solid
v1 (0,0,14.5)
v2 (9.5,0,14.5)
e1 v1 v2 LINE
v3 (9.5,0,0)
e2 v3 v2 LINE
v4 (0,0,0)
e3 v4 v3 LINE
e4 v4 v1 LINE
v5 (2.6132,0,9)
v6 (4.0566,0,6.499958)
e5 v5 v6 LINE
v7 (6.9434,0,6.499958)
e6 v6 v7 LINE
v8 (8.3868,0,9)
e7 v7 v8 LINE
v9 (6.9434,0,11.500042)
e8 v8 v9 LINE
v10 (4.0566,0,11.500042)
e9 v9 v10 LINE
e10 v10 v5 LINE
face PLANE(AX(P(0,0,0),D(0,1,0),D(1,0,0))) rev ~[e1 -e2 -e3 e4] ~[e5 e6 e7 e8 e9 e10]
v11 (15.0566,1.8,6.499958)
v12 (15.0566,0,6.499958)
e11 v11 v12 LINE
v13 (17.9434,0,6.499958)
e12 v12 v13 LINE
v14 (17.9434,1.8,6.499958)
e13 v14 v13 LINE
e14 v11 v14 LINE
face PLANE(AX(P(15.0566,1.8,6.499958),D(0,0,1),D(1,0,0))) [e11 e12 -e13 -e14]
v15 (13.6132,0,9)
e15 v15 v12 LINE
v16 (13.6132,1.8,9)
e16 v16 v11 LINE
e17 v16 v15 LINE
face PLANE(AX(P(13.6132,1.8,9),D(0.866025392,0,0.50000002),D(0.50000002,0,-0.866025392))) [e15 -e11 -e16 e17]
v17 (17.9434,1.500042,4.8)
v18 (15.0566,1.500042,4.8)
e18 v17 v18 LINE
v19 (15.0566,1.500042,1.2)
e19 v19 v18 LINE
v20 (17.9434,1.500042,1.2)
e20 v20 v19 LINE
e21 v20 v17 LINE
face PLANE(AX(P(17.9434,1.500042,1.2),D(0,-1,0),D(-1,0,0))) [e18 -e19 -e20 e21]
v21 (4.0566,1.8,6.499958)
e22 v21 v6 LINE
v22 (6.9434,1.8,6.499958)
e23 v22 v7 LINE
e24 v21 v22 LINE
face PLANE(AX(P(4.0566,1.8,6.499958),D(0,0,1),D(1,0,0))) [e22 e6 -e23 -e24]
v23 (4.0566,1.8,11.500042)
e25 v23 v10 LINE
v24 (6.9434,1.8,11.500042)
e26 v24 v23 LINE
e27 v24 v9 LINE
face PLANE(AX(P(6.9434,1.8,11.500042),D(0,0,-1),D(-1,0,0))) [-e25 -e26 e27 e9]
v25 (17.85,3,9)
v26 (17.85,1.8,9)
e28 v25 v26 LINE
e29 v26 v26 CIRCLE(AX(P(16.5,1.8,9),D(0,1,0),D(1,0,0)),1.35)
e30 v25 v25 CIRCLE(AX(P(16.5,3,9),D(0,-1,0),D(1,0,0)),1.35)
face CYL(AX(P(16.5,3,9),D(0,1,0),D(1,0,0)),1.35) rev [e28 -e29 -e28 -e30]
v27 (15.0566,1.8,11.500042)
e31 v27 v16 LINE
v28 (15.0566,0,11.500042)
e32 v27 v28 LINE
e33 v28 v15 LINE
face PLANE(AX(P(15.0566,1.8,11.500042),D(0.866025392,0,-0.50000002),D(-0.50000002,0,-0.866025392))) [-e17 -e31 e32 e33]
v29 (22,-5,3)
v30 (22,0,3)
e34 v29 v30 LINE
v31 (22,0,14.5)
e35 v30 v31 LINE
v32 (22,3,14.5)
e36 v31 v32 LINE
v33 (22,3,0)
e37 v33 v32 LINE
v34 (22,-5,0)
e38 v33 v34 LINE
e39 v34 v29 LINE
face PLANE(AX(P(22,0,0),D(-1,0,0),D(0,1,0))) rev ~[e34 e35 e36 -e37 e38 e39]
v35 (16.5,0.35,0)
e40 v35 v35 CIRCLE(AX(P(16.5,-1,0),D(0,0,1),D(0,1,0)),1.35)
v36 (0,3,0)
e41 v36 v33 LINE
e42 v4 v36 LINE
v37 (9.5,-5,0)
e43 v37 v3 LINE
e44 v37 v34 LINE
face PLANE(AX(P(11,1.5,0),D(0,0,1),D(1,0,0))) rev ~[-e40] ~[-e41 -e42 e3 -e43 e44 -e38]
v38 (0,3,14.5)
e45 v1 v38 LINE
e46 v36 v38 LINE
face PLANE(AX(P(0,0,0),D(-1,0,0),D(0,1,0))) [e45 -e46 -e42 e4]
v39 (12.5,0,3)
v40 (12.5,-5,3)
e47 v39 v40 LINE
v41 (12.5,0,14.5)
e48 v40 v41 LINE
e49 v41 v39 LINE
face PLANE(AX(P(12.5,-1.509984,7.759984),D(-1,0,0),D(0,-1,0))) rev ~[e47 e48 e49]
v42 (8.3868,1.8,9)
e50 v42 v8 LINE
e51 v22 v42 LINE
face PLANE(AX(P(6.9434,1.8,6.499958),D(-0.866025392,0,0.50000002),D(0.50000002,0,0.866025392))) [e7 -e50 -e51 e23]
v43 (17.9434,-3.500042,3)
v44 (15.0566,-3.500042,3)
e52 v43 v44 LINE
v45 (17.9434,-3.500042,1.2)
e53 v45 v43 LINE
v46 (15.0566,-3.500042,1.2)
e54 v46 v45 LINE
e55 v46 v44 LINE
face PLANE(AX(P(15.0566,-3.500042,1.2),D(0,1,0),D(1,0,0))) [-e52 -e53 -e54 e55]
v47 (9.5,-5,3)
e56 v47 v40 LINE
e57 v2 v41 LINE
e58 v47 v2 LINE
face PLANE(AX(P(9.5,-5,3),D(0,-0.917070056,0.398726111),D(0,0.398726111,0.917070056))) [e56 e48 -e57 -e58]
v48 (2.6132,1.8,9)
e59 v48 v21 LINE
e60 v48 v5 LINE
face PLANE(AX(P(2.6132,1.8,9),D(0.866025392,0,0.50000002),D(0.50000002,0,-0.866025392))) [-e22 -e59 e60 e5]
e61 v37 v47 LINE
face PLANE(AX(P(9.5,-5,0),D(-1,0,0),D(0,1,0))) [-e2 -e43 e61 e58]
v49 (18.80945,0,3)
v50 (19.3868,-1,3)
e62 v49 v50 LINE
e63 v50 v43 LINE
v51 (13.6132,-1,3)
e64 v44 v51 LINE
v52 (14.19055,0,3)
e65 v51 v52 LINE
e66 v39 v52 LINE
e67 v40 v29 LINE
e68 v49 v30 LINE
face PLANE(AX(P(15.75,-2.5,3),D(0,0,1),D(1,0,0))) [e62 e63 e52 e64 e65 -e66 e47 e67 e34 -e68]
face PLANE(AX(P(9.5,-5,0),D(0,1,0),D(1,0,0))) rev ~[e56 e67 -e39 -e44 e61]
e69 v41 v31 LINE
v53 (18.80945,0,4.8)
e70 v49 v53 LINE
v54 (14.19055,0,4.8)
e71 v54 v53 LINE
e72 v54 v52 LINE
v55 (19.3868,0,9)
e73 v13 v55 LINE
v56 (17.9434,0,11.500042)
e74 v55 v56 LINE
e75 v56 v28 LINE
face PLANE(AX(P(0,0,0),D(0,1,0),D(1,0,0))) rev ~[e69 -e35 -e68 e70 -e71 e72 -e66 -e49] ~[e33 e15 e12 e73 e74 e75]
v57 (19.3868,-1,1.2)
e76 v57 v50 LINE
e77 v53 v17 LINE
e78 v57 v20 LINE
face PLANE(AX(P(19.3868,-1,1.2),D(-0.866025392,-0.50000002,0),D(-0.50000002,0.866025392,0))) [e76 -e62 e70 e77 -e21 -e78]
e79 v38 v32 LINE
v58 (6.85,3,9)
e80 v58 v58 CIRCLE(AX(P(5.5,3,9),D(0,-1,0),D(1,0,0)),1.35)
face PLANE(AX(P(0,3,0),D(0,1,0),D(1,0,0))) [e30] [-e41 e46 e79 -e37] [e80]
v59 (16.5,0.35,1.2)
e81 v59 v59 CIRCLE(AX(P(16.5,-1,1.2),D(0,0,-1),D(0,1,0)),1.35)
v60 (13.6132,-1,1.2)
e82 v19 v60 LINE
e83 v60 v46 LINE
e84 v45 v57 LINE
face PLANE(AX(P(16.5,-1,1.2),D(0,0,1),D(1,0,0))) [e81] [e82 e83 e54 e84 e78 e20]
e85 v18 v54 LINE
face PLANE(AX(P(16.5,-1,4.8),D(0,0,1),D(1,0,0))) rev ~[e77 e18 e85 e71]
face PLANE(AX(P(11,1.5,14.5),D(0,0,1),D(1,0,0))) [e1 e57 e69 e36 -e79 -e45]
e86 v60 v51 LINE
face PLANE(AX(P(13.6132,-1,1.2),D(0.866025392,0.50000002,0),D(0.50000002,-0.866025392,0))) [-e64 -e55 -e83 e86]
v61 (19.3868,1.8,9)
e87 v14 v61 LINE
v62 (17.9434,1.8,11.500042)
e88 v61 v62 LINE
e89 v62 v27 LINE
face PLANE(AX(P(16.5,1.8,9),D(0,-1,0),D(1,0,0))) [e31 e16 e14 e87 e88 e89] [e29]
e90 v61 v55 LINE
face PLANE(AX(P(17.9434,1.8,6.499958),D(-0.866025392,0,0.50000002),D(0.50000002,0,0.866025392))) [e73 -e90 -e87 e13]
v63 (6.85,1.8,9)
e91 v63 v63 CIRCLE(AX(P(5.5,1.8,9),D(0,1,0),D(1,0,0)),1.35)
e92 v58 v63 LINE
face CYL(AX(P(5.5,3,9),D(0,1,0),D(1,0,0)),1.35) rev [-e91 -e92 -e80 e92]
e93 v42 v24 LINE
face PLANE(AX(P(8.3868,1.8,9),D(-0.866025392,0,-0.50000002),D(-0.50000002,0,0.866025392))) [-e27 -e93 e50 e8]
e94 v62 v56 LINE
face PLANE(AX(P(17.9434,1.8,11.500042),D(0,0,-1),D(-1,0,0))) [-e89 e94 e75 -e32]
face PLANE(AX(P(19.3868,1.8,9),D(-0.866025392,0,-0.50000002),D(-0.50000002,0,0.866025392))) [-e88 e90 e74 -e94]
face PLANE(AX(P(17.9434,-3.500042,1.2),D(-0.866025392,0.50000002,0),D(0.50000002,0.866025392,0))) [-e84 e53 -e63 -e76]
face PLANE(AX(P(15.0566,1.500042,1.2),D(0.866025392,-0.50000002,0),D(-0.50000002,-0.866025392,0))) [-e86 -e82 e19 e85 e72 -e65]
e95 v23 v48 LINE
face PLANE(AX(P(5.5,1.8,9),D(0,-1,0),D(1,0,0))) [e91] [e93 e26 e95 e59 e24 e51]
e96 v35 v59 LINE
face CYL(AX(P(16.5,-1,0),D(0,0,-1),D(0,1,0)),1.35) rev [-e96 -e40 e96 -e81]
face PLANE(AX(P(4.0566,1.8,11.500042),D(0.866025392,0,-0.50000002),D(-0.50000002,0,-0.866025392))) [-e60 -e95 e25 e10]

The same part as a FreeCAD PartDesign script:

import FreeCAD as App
import Part
import Sketcher
Q = App.Units.Quantity

doc = App.newDocument("Part")
body = doc.addObject("PartDesign::Body", "Body")

sketch1 = body.newObject("Sketcher::SketchObject", "Sketch")
sketch1.AttachmentSupport = (doc.getObject("XY_Plane"), [""])
sketch1.MapMode = "FlatFace"
sketch1.addGeometry([
    Part.LineSegment(App.Vector(2.8868, 0, 0), App.Vector(1.4434, 2.500042, 0)),
    Part.LineSegment(App.Vector(1.4434, 2.500042, 0), App.Vector(-1.4434, 2.500042, 0)),
    Part.LineSegment(App.Vector(-1.4434, 2.500042, 0), App.Vector(-2.8868, 0, 0)),
    Part.LineSegment(App.Vector(-2.8868, 0, 0), App.Vector(-1.4434, -2.500042, 0)),
    Part.LineSegment(App.Vector(-1.4434, -2.500042, 0), App.Vector(1.4434, -2.500042, 0)),
    Part.LineSegment(App.Vector(1.4434, -2.500042, 0), App.Vector(2.8868, 0, 0)),
], False)
sketch1.addConstraint([
    Sketcher.Constraint("Coincident", 0, 2, 1, 1),
    Sketcher.Constraint("Coincident", 1, 2, 2, 1),
    Sketcher.Constraint("Coincident", 2, 2, 3, 1),
    Sketcher.Constraint("Coincident", 3, 2, 4, 1),
    Sketcher.Constraint("Coincident", 4, 2, 5, 1),
    Sketcher.Constraint("Coincident", 5, 2, 0, 1),
    Sketcher.Constraint("Horizontal", 1),
    Sketcher.Constraint("Horizontal", 4),
    Sketcher.Constraint("Symmetric", 0, 2, 3, 2, -1, 1),
    Sketcher.Constraint("Symmetric", 2, 2, 5, 2, -1, 1),
    Sketcher.Constraint("PointOnObject", 2, 2, -1),
    Sketcher.Constraint("Parallel", 2, 5),
    Sketcher.Constraint("Vertical", 1, 2, 3, 2),
    Sketcher.Constraint("Angle", 0, Q("120.000001 deg")),
    Sketcher.Constraint("DistanceX", 1, 2, 1, 1, Q("2.8868 mm")),
    Sketcher.Constraint("Distance", 0, Q("2.8868 mm")),
])
pad1 = body.newObject("PartDesign::Pad", "Pad")
pad1.Profile = sketch1
pad1.Length = 3.6
body2 = doc.addObject("PartDesign::Body", "Body001")
doc.recompute()

body.Placement = App.Placement(App.Vector(16.5, -1, 1.2), App.Rotation(App.Vector(0, 0, 1), 0))
boolean = body2.newObject("PartDesign::Boolean", "Boolean")
boolean.Type = "Fuse"
boolean.addObjects([body])
body3 = doc.addObject("PartDesign::Body", "Body002")

sketch2 = body3.newObject("Sketcher::SketchObject", "Sketch001")
sketch2.AttachmentSupport = (doc.getObject("XY_Plane002"), [""])
sketch2.MapMode = "FlatFace"
sketch2.addGeometry(Part.Circle(App.Vector(16.5, -1, 0), App.Vector(0, 0, 1), 1.35), False)
sketch2.addConstraint([
    Sketcher.Constraint("Diameter", 0, Q("2.7 mm")),
    Sketcher.Constraint("DistanceY", 0, 3, -1, 1, Q("1 mm")),
    Sketcher.Constraint("DistanceX", -1, 1, 0, 3, Q("16.5 mm")),
])
pad2 = body3.newObject("PartDesign::Pad", "Pad001")
pad2.Profile = sketch2
pad2.Length = 3
doc.recompute()

boolean2 = body3.newObject("PartDesign::Boolean", "Boolean001")
boolean2.Type = "Fuse"
boolean2.addObjects([body2])
body4 = doc.addObject("PartDesign::Body", "Body003")

sketch3 = body4.newObject("Sketcher::SketchObject", "Sketch002")
sketch3.AttachmentSupport = (doc.getObject("XZ_Plane003"), [""])
sketch3.MapMode = "FlatFace"
sketch3.AttachmentOffset = App.Placement(App.Vector(0, 0, -1.8), App.Rotation())
sketch3.addGeometry([
    Part.LineSegment(App.Vector(19.3868, 9, 0), App.Vector(17.9434, 11.500042, 0)),
    Part.LineSegment(App.Vector(17.9434, 11.500042, 0), App.Vector(15.0566, 11.500042, 0)),
    Part.LineSegment(App.Vector(15.0566, 11.500042, 0), App.Vector(13.6132, 9, 0)),
    Part.LineSegment(App.Vector(13.6132, 9, 0), App.Vector(15.0566, 6.499958, 0)),
    Part.LineSegment(App.Vector(15.0566, 6.499958, 0), App.Vector(17.9434, 6.499958, 0)),
    Part.LineSegment(App.Vector(17.9434, 6.499958, 0), App.Vector(19.3868, 9, 0)),
], False)
sketch3.addConstraint([
    Sketcher.Constraint("Coincident", 0, 2, 1, 1),
    Sketcher.Constraint("Coincident", 1, 2, 2, 1),
    Sketcher.Constraint("Coincident", 2, 2, 3, 1),
    Sketcher.Constraint("Coincident", 3, 2, 4, 1),
    Sketcher.Constraint("Coincident", 4, 2, 5, 1),
    Sketcher.Constraint("Coincident", 5, 2, 0, 1),
    Sketcher.Constraint("Horizontal", 1),
    Sketcher.Constraint("Horizontal", 4),
    Sketcher.Constraint("Parallel", 0, 3),
    Sketcher.Constraint("Parallel", 2, 5),
    Sketcher.Constraint("Horizontal", 2, 2, 5, 2),
    Sketcher.Constraint("Vertical", 1, 2, 3, 2),
    Sketcher.Constraint("Vertical", 0, 2, 4, 2),
    Sketcher.Constraint("Angle", 0, Q("120.000001 deg")),
    Sketcher.Constraint("DistanceY", -1, 1, 2, 2, Q("9 mm")),
    Sketcher.Constraint("DistanceX", 1, 2, 1, 1, Q("2.8868 mm")),
    Sketcher.Constraint("Distance", 0, Q("2.8868 mm")),
    Sketcher.Constraint("DistanceX", -1, 1, 0, 2, Q("17.9434 mm")),
])
pad3 = body4.newObject("PartDesign::Pad", "Pad002")
pad3.Profile = sketch3
pad3.Length = 1.8
body5 = doc.addObject("PartDesign::Body", "Body004")

sketch4 = body5.newObject("Sketcher::SketchObject", "Sketch003")
sketch4.AttachmentSupport = (doc.getObject("XZ_Plane004"), [""])
sketch4.MapMode = "FlatFace"
sketch4.AttachmentOffset = App.Placement(App.Vector(0, 0, -3), App.Rotation())
sketch4.addGeometry(Part.Circle(App.Vector(16.5, 9, 0), App.Vector(0, 0, 1), 1.35), False)
sketch4.addConstraint([
    Sketcher.Constraint("Diameter", 0, Q("2.7 mm")),
    Sketcher.Constraint("DistanceY", -1, 1, 0, 3, Q("9 mm")),
    Sketcher.Constraint("DistanceX", -1, 1, 0, 3, Q("16.5 mm")),
])
pad4 = body5.newObject("PartDesign::Pad", "Pad003")
pad4.Profile = sketch4
pad4.Length = 30
doc.recompute()

boolean3 = body5.newObject("PartDesign::Boolean", "Boolean002")
boolean3.Type = "Fuse"
boolean3.addObjects([body4])
body6 = doc.addObject("PartDesign::Body", "Body005")

sketch5 = body6.newObject("Sketcher::SketchObject", "Sketch004")
sketch5.AttachmentSupport = (doc.getObject("XZ_Plane005"), [""])
sketch5.MapMode = "FlatFace"
sketch5.AttachmentOffset = App.Placement(App.Vector(0, 0, -1.8), App.Rotation())
sketch5.addGeometry([
    Part.LineSegment(App.Vector(8.3868, 9, 0), App.Vector(6.9434, 11.500042, 0)),
    Part.LineSegment(App.Vector(6.9434, 11.500042, 0), App.Vector(4.0566, 11.500042, 0)),
    Part.LineSegment(App.Vector(4.0566, 11.500042, 0), App.Vector(2.6132, 9, 0)),
    Part.LineSegment(App.Vector(2.6132, 9, 0), App.Vector(4.0566, 6.499958, 0)),
    Part.LineSegment(App.Vector(4.0566, 6.499958, 0), App.Vector(6.9434, 6.499958, 0)),
    Part.LineSegment(App.Vector(6.9434, 6.499958, 0), App.Vector(8.3868, 9, 0)),
], False)
sketch5.addConstraint([
    Sketcher.Constraint("Coincident", 0, 2, 1, 1),
    Sketcher.Constraint("Coincident", 1, 2, 2, 1),
    Sketcher.Constraint("Coincident", 2, 2, 3, 1),
    Sketcher.Constraint("Coincident", 3, 2, 4, 1),
    Sketcher.Constraint("Coincident", 4, 2, 5, 1),
    Sketcher.Constraint("Coincident", 5, 2, 0, 1),
    Sketcher.Constraint("Horizontal", 1),
    Sketcher.Constraint("Horizontal", 4),
    Sketcher.Constraint("Parallel", 0, 3),
    Sketcher.Constraint("Parallel", 2, 5),
    Sketcher.Constraint("Horizontal", 2, 2, 5, 2),
    Sketcher.Constraint("Vertical", 1, 2, 3, 2),
    Sketcher.Constraint("Vertical", 0, 2, 4, 2),
    Sketcher.Constraint("Angle", 0, Q("120.000001 deg")),
    Sketcher.Constraint("DistanceY", -1, 1, 2, 2, Q("9 mm")),
    Sketcher.Constraint("DistanceX", 1, 2, 1, 1, Q("2.8868 mm")),
    Sketcher.Constraint("Distance", 0, Q("2.8868 mm")),
    Sketcher.Constraint("DistanceX", -1, 1, 0, 2, Q("6.9434 mm")),
])
pad5 = body6.newObject("PartDesign::Pad", "Pad004")
pad5.Profile = sketch5
pad5.Length = 1.8
body7 = doc.addObject("PartDesign::Body", "Body006")

sketch6 = body7.newObject("Sketcher::SketchObject", "Sketch005")
sketch6.AttachmentSupport = (doc.getObject("XZ_Plane006"), [""])
sketch6.MapMode = "FlatFace"
sketch6.AttachmentOffset = App.Placement(App.Vector(0, 0, -3), App.Rotation())
sketch6.addGeometry(Part.Circle(App.Vector(5.5, 9, 0), App.Vector(0, 0, 1), 1.35), False)
sketch6.addConstraint([
    Sketcher.Constraint("Diameter", 0, Q("2.7 mm")),
    Sketcher.Constraint("DistanceY", -1, 1, 0, 3, Q("9 mm")),
    Sketcher.Constraint("DistanceX", -1, 1, 0, 3, Q("5.5 mm")),
])
pad6 = body7.newObject("PartDesign::Pad", "Pad005")
pad6.Profile = sketch6
pad6.Length = 3
doc.recompute()

boolean4 = body7.newObject("PartDesign::Boolean", "Boolean003")
boolean4.Type = "Fuse"
boolean4.addObjects([body6])
body8 = doc.addObject("PartDesign::Body", "Body007")

sketch7 = body8.newObject("Sketcher::SketchObject", "Sketch006")
sketch7.AttachmentSupport = (doc.getObject("XY_Plane007"), [""])
sketch7.MapMode = "FlatFace"
sketch7.addGeometry([
    Part.LineSegment(App.Vector(0, 3, 0), App.Vector(0, 0, 0)),
    Part.LineSegment(App.Vector(0, 0, 0), App.Vector(22, 0, 0)),
    Part.LineSegment(App.Vector(22, 0, 0), App.Vector(22, 3, 0)),
    Part.LineSegment(App.Vector(22, 3, 0), App.Vector(0, 3, 0)),
], False)
sketch7.addConstraint([
    Sketcher.Constraint("Coincident", 0, 2, 1, 1),
    Sketcher.Constraint("Coincident", 1, 2, 2, 1),
    Sketcher.Constraint("Coincident", 2, 2, 3, 1),
    Sketcher.Constraint("Coincident", 3, 2, 0, 1),
    Sketcher.Constraint("Vertical", 0),
    Sketcher.Constraint("Horizontal", 1),
    Sketcher.Constraint("Vertical", 2),
    Sketcher.Constraint("Horizontal", 3),
    Sketcher.Constraint("Coincident", 0, 2, -1, 1),
    Sketcher.Constraint("DistanceX", 1, 1, 1, 2, Q("22 mm")),
    Sketcher.Constraint("DistanceY", 0, 2, 0, 1, Q("3 mm")),
])
pad7 = body8.newObject("PartDesign::Pad", "Pad006")
pad7.Profile = sketch7
pad7.Length = 14.5
doc.recompute()

boolean5 = body8.newObject("PartDesign::Boolean", "Boolean004")
boolean5.Type = "Cut"
boolean5.addObjects([body7])
doc.recompute()

boolean6 = body8.newObject("PartDesign::Boolean", "Boolean005")
boolean6.Type = "Cut"
boolean6.addObjects([body5])
body9 = doc.addObject("PartDesign::Body", "Body008")

sketch8 = body9.newObject("Sketcher::SketchObject", "Sketch007")
sketch8.AttachmentSupport = (doc.getObject("XY_Plane008"), [""])
sketch8.MapMode = "FlatFace"
sketch8.addGeometry([
    Part.LineSegment(App.Vector(9.5, 0, 0), App.Vector(9.5, -5, 0)),
    Part.LineSegment(App.Vector(9.5, -5, 0), App.Vector(22, -5, 0)),
    Part.LineSegment(App.Vector(22, -5, 0), App.Vector(22, 0, 0)),
    Part.LineSegment(App.Vector(22, 0, 0), App.Vector(9.5, 0, 0)),
], False)
sketch8.addConstraint([
    Sketcher.Constraint("Coincident", 0, 2, 1, 1),
    Sketcher.Constraint("Coincident", 1, 2, 2, 1),
    Sketcher.Constraint("Coincident", 2, 2, 3, 1),
    Sketcher.Constraint("Coincident", 3, 2, 0, 1),
    Sketcher.Constraint("Vertical", 0),
    Sketcher.Constraint("Horizontal", 1),
    Sketcher.Constraint("Vertical", 2),
    Sketcher.Constraint("Horizontal", 3),
    Sketcher.Constraint("PointOnObject", 2, 2, -1),
    Sketcher.Constraint("DistanceY", 0, 2, 0, 1, Q("5 mm")),
    Sketcher.Constraint("DistanceX", 1, 1, 1, 2, Q("12.5 mm")),
    Sketcher.Constraint("DistanceX", -1, 1, 1, 2, Q("22 mm")),
])
pad8 = body9.newObject("PartDesign::Pad", "Pad007")
pad8.Profile = sketch8
pad8.Length = 3
doc.recompute()

boolean7 = body9.newObject("PartDesign::Boolean", "Boolean006")
boolean7.Type = "Fuse"
boolean7.addObjects([body8])
doc.recompute()

boolean8 = body9.newObject("PartDesign::Boolean", "Boolean007")
boolean8.Type = "Cut"
boolean8.addObjects([body3])
body10 = doc.addObject("PartDesign::Body", "Body009")

sketch9 = body10.newObject("Sketcher::SketchObject", "Sketch008")
sketch9.AttachmentSupport = (doc.getObject("YZ_Plane009"), [""])
sketch9.MapMode = "FlatFace"
sketch9.addGeometry([
    Part.LineSegment(App.Vector(0, 1.4, 0), App.Vector(0, 12.9, 0)),
    Part.LineSegment(App.Vector(0, 12.9, 0), App.Vector(-5, 1.4, 0)),
    Part.LineSegment(App.Vector(-5, 1.4, 0), App.Vector(0, 1.4, 0)),
], False)
sketch9.addConstraint([
    Sketcher.Constraint("Coincident", 0, 2, 1, 1),
    Sketcher.Constraint("Coincident", 1, 2, 2, 1),
    Sketcher.Constraint("Coincident", 2, 2, 0, 1),
    Sketcher.Constraint("Vertical", 0),
    Sketcher.Constraint("Horizontal", 2),
    Sketcher.Constraint("PointOnObject", 0, 2, -2),
    Sketcher.Constraint("DistanceX", 2, 1, 2, 2, Q("5 mm")),
    Sketcher.Constraint("DistanceY", 0, 1, 0, 2, Q("11.5 mm")),
    Sketcher.Constraint("DistanceY", -1, 1, 0, 2, Q("12.9 mm")),
])
pad9 = body10.newObject("PartDesign::Pad", "Pad008")
pad9.Profile = sketch9
pad9.Length = 3
body11 = doc.addObject("PartDesign::Body", "Body010")
doc.recompute()

body10.Placement = App.Placement(App.Vector(9.5, 0, 1.6), App.Rotation(App.Vector(0, 0, 1), 0))
boolean9 = body11.newObject("PartDesign::Boolean", "Boolean008")
boolean9.Type = "Fuse"
boolean9.addObjects([body10])
doc.recompute()

boolean10 = body11.newObject("PartDesign::Boolean", "Boolean009")
boolean10.Type = "Fuse"
boolean10.addObjects([body9])

doc.recompute()
